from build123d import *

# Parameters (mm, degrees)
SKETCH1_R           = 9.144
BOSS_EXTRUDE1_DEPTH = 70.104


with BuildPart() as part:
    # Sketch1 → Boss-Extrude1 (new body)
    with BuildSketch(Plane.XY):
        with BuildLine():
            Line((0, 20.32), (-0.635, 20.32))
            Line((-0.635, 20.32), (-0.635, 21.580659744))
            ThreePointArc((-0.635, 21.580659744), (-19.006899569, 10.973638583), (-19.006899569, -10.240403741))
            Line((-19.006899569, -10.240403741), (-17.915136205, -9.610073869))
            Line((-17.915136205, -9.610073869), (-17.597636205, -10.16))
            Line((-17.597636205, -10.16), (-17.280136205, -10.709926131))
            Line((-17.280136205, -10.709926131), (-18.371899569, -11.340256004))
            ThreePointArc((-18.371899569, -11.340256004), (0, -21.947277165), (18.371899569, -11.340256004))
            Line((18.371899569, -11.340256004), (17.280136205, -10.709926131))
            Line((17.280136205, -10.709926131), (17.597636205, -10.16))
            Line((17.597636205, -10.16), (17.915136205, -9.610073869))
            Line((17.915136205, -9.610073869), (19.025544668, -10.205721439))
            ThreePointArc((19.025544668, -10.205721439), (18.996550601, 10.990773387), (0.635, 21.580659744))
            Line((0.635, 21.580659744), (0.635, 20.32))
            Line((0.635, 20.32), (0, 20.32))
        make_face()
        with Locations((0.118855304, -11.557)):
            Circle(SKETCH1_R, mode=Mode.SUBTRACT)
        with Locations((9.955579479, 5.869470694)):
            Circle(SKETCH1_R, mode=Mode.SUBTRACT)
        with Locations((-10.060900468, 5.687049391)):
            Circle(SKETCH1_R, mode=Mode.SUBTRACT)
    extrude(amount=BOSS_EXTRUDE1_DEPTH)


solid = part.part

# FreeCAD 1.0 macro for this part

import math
import FreeCAD as App
import Part
import Sketcher

V = App.Vector
Q = App.Units.Quantity

doc = App.newDocument("Part")
body = doc.addObject("PartDesign::Body", "Body")

sketch1 = doc.addObject("Sketcher::SketchObject", "Sketch")
body.addObject(sketch1)
sketch1.AttachmentSupport = (doc.XY_Plane, [""])
sketch1.MapMode = "FlatFace"
sketch1.addGeometry(Part.LineSegment(V(-0.6, 20.3, 0), V(-0.6, 21.6, 0)), False)
sketch1.addGeometry(Part.ArcOfCircle(Part.Circle(V(-0.6, 0.4, 0), V(0, 0, 1), 21.2), math.radians(90), math.radians(210)), False)
sketch1.addGeometry(Part.LineSegment(V(-19, -10.2, 0), V(-17.9, -9.6, 0)), False)
sketch1.addGeometry(Part.LineSegment(V(-17.9, -9.6, 0), V(-17.3, -10.7, 0)), False)
sketch1.addGeometry(Part.LineSegment(V(-17.3, -10.7, 0), V(-18.4, -11.3, 0)), False)
sketch1.addGeometry(Part.ArcOfCircle(Part.Circle(V(0, -0.7, 0), V(0, 0, 1), 21.2), math.radians(-150), math.radians(-30)), False)
sketch1.addGeometry(Part.LineSegment(V(18.4, -11.3, 0), V(17.3, -10.7, 0)), False)
sketch1.addGeometry(Part.LineSegment(V(17.3, -10.7, 0), V(17.9, -9.6, 0)), False)
sketch1.addGeometry(Part.LineSegment(V(17.9, -9.6, 0), V(19, -10.2, 0)), False)
sketch1.addGeometry(Part.ArcOfCircle(Part.Circle(V(0.6, 0.4, 0), V(0, 0, 1), 21.2), math.radians(-30), math.radians(90)), False)
sketch1.addGeometry(Part.LineSegment(V(0.6, 21.6, 0), V(0.6, 20.3, 0)), False)
sketch1.addGeometry(Part.LineSegment(V(0.6, 20.3, 0), V(-0.6, 20.3, 0)), False)
sketch1.addGeometry(Part.Circle(V(0.1, -11.6, 0), V(0, 0, 1), 9.1), False)
sketch1.addGeometry(Part.Circle(V(-10.1, 5.7, 0), V(0, 0, 1), 9.1), False)
sketch1.addGeometry(Part.Circle(V(10, 5.9, 0), V(0, 0, 1), 9.1), False)
sketch1.addConstraint(Sketcher.Constraint("Coincident", 0, 2, 1, 1))
sketch1.addConstraint(Sketcher.Constraint("Coincident", 1, 2, 2, 1))
sketch1.addConstraint(Sketcher.Constraint("Coincident", 2, 2, 3, 1))
sketch1.addConstraint(Sketcher.Constraint("Coincident", 3, 2, 4, 1))
sketch1.addConstraint(Sketcher.Constraint("Coincident", 4, 2, 5, 1))
sketch1.addConstraint(Sketcher.Constraint("Coincident", 5, 2, 6, 1))
sketch1.addConstraint(Sketcher.Constraint("Coincident", 6, 2, 7, 1))
sketch1.addConstraint(Sketcher.Constraint("Coincident", 7, 2, 8, 1))
sketch1.addConstraint(Sketcher.Constraint("Coincident", 8, 2, 9, 1))
sketch1.addConstraint(Sketcher.Constraint("Coincident", 9, 2, 10, 1))
sketch1.addConstraint(Sketcher.Constraint("Coincident", 10, 2, 11, 1))
sketch1.addConstraint(Sketcher.Constraint("Coincident", 11, 2, 0, 1))
sketch1.addConstraint(Sketcher.Constraint("Vertical", 0))
sketch1.addConstraint(Sketcher.Constraint("Vertical", 10))
sketch1.addConstraint(Sketcher.Constraint("Horizontal", 11))
sketch1.addConstraint(Sketcher.Constraint("Equal", 1, 5))
sketch1.addConstraint(Sketcher.Constraint("Equal", 12, 13))
sketch1.addConstraint(Sketcher.Constraint("Equal", 13, 14))
sketch1.addConstraint(Sketcher.Constraint("Symmetric", 4, 2, 5, 2, -2))
sketch1.addConstraint(Sketcher.Constraint("Symmetric", 3, 2, 6, 2, -2))
sketch1.addConstraint(Sketcher.Constraint("Symmetric", 2, 2, 7, 2, -2))
sketch1.addConstraint(Sketcher.Constraint("Symmetric", 0, 2, 9, 2, -2))
sketch1.addConstraint(Sketcher.Constraint("Perpendicular", 2, 3))
sketch1.addConstraint(Sketcher.Constraint("Perpendicular", 3, 4))
sketch1.addConstraint(Sketcher.Constraint("Vertical", 1, 3, 0, 2))
sketch1.addConstraint(Sketcher.Constraint("Equal", 2, 4))
sketch1.addConstraint(Sketcher.Constraint("Diameter", 12, Q("0.72 in")))
sketch1.addConstraint(Sketcher.Constraint("Angle", 2, Q("30 deg")))
sketch1.addConstraint(Sketcher.Constraint("DistanceX", 11, 2, 11, 1, Q("0.05 in")))
sketch1.addConstraint(Sketcher.Constraint("DistanceY", -1, 1, 10, 2, Q("0.8 in")))
sketch1.addConstraint(Sketcher.Constraint("Distance", 3, Q("0.05 in")))
sketch1.addConstraint(Sketcher.Constraint("DistanceX", 1, 3, 9, 3, Q("0.05 in")))
sketch1.addConstraint(Sketcher.Constraint("DistanceY", 12, 3, -1, 1, Q("0.455 in")))
sketch1.addConstraint(Sketcher.Constraint("Radius", 9, Q("21.21327 mm")))
sketch1.addConstraint(Sketcher.Constraint("DistanceY", 8, 2, -1, 1, Q("0.4018001 in")))
sketch1.addConstraint(Sketcher.Constraint("Radius", 1, Q("21.214042 mm")))
sketch1.addConstraint(Sketcher.Constraint("DistanceY", 0, 1, 0, 2, Q("1.26066 mm")))
sketch1.addConstraint(Sketcher.Constraint("DistanceX", 13, 3, -1, 1, Q("10.0609 mm")))
sketch1.addConstraint(Sketcher.Constraint("DistanceX", 1, 2, -1, 1, Q("19.0069 mm")))
sketch1.addConstraint(Sketcher.Constraint("Distance", 2, Q("1.26066 mm")))
sketch1.addConstraint(Sketcher.Constraint("DistanceY", -1, 1, 13, 3, Q("5.687049 mm")))
sketch1.addConstraint(Sketcher.Constraint("DistanceX", -1, 1, 14, 3, Q("9.955579 mm")))
sketch1.addConstraint(Sketcher.Constraint("DistanceY", -1, 1, 14, 3, Q("5.869471 mm")))
sketch1.addConstraint(Sketcher.Constraint("DistanceX", 2, 2, 12, 3, Q("18.033992 mm")))
pad1 = doc.addObject("PartDesign::Pad", "Pad")
body.addObject(pad1)
pad1.Profile = sketch1
pad1.Length = Q("2.76 in")

doc.recompute()
